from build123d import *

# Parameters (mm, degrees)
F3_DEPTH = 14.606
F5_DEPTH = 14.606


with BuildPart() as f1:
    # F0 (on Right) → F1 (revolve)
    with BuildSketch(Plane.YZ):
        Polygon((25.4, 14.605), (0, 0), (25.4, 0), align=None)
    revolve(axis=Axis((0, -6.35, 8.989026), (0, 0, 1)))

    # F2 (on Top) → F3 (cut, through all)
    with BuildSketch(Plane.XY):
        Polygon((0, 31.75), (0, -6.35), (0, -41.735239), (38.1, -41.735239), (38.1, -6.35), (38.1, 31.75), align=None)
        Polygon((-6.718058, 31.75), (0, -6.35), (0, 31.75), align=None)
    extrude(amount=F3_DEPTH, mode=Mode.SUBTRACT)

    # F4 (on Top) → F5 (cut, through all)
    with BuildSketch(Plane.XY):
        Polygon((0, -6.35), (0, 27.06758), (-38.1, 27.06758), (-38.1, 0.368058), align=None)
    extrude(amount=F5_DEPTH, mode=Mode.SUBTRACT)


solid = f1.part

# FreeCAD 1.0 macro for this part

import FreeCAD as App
import Part
import Sketcher
Q = App.Units.Quantity


def add_polygon(sketch, points):
    """Adds a closed chain of lines whose ends are joined by coincident constraints."""
    first, n = sketch.GeometryCount, len(points)
    for a, b in zip(points, points[1:] + points[:1]):
        sketch.addGeometry(Part.LineSegment(App.Vector(*a, 0), App.Vector(*b, 0)), False)
    for i in range(n):
        sketch.addConstraint(Sketcher.Constraint("Coincident", first + i, 2, first + (i + 1) % n, 1))

doc = App.newDocument("Part")
body = doc.addObject("PartDesign::Body", "Body")

sketch1 = body.newObject("Sketcher::SketchObject", "Sketch")
sketch1.AttachmentSupport = (doc.getObject("YZ_Plane"), [""])
sketch1.MapMode = "FlatFace"
add_polygon(sketch1, [(25.4, 14.605), (0, 0), (25.4, 0)])
sketch1.addGeometry(Part.LineSegment(App.Vector(-6.35, 0, 0), App.Vector(-6.35, 14.605, 0)), True)
sketch1.addConstraint([
    Sketcher.Constraint("Horizontal", 1),
    Sketcher.Constraint("Vertical", 2),
    Sketcher.Constraint("Vertical", 3),
    Sketcher.Constraint("Coincident", 0, 2, -1, 1),
    Sketcher.Constraint("PointOnObject", 3, 1, -1),
    Sketcher.Constraint("Horizontal", 2, 2, 3, 2),
    Sketcher.Constraint("DistanceX", 1, 1, 1, 2, Q("1 in")),
    Sketcher.Constraint("DistanceY", 2, 1, 2, 2, Q("0.575 in")),
    Sketcher.Constraint("DistanceX", 3, 1, -1, 1, Q("0.25 in")),
])
revolution = body.newObject("PartDesign::Revolution", "Revolution")
revolution.Profile = sketch1
revolution.ReferenceAxis = (sketch1, ["Axis0"])
revolution.Angle = 360

sketch2 = body.newObject("Sketcher::SketchObject", "Sketch001")
sketch2.AttachmentSupport = (doc.getObject("XY_Plane"), [""])
sketch2.MapMode = "FlatFace"
add_polygon(sketch2, [(0, -6.35), (0, -41.735239), (38.1, -41.735239), (38.1, 31.75), (-6.718058, 31.75)])
sketch2.addConstraint([
    Sketcher.Constraint("Vertical", 0),
    Sketcher.Constraint("Horizontal", 1),
    Sketcher.Constraint("Vertical", 2),
    Sketcher.Constraint("Horizontal", 3),
    Sketcher.Constraint("PointOnObject", 0, 2, -2),
    Sketcher.Constraint("DistanceX", 1, 1, 1, 2, Q("1.5 in")),
    Sketcher.Constraint("Angle", 4, Q("-80 deg")),
    Sketcher.Constraint("DistanceY", 4, 2, 3, 2, Q("1.5 in")),
    Sketcher.Constraint("DistanceY", -1, 1, 2, 2, Q("1.25 in")),
    Sketcher.Constraint("DistanceY", 0, 2, 0, 1, 35.385239),
])
pocket1 = body.newObject("PartDesign::Pocket", "Pocket")
pocket1.Profile = sketch2
pocket1.Type = "ThroughAll"
pocket1.Reversed = True

sketch3 = body.newObject("Sketcher::SketchObject", "Sketch002")
sketch3.AttachmentSupport = (doc.getObject("XY_Plane"), [""])
sketch3.MapMode = "FlatFace"
add_polygon(sketch3, [(0, -6.35), (0, 27.06758), (-38.1, 27.06758), (-38.1, 0.368058)])
sketch3.addConstraint([
    Sketcher.Constraint("Vertical", 0),
    Sketcher.Constraint("Horizontal", 1),
    Sketcher.Constraint("Vertical", 2),
    Sketcher.Constraint("PointOnObject", 0, 2, -2),
    Sketcher.Constraint("DistanceX", 1, 2, 1, 1, Q("1.5 in")),
    Sketcher.Constraint("Angle", 3, Q("-10 deg")),
    Sketcher.Constraint("DistanceY", 3, 2, -1, 1, Q("0.25 in")),
    Sketcher.Constraint("DistanceY", 0, 1, 0, 2, 33.41758),
])
pocket2 = body.newObject("PartDesign::Pocket", "Pocket001")
pocket2.Profile = sketch3
pocket2.Type = "ThroughAll"
pocket2.Reversed = True

doc.recompute()
